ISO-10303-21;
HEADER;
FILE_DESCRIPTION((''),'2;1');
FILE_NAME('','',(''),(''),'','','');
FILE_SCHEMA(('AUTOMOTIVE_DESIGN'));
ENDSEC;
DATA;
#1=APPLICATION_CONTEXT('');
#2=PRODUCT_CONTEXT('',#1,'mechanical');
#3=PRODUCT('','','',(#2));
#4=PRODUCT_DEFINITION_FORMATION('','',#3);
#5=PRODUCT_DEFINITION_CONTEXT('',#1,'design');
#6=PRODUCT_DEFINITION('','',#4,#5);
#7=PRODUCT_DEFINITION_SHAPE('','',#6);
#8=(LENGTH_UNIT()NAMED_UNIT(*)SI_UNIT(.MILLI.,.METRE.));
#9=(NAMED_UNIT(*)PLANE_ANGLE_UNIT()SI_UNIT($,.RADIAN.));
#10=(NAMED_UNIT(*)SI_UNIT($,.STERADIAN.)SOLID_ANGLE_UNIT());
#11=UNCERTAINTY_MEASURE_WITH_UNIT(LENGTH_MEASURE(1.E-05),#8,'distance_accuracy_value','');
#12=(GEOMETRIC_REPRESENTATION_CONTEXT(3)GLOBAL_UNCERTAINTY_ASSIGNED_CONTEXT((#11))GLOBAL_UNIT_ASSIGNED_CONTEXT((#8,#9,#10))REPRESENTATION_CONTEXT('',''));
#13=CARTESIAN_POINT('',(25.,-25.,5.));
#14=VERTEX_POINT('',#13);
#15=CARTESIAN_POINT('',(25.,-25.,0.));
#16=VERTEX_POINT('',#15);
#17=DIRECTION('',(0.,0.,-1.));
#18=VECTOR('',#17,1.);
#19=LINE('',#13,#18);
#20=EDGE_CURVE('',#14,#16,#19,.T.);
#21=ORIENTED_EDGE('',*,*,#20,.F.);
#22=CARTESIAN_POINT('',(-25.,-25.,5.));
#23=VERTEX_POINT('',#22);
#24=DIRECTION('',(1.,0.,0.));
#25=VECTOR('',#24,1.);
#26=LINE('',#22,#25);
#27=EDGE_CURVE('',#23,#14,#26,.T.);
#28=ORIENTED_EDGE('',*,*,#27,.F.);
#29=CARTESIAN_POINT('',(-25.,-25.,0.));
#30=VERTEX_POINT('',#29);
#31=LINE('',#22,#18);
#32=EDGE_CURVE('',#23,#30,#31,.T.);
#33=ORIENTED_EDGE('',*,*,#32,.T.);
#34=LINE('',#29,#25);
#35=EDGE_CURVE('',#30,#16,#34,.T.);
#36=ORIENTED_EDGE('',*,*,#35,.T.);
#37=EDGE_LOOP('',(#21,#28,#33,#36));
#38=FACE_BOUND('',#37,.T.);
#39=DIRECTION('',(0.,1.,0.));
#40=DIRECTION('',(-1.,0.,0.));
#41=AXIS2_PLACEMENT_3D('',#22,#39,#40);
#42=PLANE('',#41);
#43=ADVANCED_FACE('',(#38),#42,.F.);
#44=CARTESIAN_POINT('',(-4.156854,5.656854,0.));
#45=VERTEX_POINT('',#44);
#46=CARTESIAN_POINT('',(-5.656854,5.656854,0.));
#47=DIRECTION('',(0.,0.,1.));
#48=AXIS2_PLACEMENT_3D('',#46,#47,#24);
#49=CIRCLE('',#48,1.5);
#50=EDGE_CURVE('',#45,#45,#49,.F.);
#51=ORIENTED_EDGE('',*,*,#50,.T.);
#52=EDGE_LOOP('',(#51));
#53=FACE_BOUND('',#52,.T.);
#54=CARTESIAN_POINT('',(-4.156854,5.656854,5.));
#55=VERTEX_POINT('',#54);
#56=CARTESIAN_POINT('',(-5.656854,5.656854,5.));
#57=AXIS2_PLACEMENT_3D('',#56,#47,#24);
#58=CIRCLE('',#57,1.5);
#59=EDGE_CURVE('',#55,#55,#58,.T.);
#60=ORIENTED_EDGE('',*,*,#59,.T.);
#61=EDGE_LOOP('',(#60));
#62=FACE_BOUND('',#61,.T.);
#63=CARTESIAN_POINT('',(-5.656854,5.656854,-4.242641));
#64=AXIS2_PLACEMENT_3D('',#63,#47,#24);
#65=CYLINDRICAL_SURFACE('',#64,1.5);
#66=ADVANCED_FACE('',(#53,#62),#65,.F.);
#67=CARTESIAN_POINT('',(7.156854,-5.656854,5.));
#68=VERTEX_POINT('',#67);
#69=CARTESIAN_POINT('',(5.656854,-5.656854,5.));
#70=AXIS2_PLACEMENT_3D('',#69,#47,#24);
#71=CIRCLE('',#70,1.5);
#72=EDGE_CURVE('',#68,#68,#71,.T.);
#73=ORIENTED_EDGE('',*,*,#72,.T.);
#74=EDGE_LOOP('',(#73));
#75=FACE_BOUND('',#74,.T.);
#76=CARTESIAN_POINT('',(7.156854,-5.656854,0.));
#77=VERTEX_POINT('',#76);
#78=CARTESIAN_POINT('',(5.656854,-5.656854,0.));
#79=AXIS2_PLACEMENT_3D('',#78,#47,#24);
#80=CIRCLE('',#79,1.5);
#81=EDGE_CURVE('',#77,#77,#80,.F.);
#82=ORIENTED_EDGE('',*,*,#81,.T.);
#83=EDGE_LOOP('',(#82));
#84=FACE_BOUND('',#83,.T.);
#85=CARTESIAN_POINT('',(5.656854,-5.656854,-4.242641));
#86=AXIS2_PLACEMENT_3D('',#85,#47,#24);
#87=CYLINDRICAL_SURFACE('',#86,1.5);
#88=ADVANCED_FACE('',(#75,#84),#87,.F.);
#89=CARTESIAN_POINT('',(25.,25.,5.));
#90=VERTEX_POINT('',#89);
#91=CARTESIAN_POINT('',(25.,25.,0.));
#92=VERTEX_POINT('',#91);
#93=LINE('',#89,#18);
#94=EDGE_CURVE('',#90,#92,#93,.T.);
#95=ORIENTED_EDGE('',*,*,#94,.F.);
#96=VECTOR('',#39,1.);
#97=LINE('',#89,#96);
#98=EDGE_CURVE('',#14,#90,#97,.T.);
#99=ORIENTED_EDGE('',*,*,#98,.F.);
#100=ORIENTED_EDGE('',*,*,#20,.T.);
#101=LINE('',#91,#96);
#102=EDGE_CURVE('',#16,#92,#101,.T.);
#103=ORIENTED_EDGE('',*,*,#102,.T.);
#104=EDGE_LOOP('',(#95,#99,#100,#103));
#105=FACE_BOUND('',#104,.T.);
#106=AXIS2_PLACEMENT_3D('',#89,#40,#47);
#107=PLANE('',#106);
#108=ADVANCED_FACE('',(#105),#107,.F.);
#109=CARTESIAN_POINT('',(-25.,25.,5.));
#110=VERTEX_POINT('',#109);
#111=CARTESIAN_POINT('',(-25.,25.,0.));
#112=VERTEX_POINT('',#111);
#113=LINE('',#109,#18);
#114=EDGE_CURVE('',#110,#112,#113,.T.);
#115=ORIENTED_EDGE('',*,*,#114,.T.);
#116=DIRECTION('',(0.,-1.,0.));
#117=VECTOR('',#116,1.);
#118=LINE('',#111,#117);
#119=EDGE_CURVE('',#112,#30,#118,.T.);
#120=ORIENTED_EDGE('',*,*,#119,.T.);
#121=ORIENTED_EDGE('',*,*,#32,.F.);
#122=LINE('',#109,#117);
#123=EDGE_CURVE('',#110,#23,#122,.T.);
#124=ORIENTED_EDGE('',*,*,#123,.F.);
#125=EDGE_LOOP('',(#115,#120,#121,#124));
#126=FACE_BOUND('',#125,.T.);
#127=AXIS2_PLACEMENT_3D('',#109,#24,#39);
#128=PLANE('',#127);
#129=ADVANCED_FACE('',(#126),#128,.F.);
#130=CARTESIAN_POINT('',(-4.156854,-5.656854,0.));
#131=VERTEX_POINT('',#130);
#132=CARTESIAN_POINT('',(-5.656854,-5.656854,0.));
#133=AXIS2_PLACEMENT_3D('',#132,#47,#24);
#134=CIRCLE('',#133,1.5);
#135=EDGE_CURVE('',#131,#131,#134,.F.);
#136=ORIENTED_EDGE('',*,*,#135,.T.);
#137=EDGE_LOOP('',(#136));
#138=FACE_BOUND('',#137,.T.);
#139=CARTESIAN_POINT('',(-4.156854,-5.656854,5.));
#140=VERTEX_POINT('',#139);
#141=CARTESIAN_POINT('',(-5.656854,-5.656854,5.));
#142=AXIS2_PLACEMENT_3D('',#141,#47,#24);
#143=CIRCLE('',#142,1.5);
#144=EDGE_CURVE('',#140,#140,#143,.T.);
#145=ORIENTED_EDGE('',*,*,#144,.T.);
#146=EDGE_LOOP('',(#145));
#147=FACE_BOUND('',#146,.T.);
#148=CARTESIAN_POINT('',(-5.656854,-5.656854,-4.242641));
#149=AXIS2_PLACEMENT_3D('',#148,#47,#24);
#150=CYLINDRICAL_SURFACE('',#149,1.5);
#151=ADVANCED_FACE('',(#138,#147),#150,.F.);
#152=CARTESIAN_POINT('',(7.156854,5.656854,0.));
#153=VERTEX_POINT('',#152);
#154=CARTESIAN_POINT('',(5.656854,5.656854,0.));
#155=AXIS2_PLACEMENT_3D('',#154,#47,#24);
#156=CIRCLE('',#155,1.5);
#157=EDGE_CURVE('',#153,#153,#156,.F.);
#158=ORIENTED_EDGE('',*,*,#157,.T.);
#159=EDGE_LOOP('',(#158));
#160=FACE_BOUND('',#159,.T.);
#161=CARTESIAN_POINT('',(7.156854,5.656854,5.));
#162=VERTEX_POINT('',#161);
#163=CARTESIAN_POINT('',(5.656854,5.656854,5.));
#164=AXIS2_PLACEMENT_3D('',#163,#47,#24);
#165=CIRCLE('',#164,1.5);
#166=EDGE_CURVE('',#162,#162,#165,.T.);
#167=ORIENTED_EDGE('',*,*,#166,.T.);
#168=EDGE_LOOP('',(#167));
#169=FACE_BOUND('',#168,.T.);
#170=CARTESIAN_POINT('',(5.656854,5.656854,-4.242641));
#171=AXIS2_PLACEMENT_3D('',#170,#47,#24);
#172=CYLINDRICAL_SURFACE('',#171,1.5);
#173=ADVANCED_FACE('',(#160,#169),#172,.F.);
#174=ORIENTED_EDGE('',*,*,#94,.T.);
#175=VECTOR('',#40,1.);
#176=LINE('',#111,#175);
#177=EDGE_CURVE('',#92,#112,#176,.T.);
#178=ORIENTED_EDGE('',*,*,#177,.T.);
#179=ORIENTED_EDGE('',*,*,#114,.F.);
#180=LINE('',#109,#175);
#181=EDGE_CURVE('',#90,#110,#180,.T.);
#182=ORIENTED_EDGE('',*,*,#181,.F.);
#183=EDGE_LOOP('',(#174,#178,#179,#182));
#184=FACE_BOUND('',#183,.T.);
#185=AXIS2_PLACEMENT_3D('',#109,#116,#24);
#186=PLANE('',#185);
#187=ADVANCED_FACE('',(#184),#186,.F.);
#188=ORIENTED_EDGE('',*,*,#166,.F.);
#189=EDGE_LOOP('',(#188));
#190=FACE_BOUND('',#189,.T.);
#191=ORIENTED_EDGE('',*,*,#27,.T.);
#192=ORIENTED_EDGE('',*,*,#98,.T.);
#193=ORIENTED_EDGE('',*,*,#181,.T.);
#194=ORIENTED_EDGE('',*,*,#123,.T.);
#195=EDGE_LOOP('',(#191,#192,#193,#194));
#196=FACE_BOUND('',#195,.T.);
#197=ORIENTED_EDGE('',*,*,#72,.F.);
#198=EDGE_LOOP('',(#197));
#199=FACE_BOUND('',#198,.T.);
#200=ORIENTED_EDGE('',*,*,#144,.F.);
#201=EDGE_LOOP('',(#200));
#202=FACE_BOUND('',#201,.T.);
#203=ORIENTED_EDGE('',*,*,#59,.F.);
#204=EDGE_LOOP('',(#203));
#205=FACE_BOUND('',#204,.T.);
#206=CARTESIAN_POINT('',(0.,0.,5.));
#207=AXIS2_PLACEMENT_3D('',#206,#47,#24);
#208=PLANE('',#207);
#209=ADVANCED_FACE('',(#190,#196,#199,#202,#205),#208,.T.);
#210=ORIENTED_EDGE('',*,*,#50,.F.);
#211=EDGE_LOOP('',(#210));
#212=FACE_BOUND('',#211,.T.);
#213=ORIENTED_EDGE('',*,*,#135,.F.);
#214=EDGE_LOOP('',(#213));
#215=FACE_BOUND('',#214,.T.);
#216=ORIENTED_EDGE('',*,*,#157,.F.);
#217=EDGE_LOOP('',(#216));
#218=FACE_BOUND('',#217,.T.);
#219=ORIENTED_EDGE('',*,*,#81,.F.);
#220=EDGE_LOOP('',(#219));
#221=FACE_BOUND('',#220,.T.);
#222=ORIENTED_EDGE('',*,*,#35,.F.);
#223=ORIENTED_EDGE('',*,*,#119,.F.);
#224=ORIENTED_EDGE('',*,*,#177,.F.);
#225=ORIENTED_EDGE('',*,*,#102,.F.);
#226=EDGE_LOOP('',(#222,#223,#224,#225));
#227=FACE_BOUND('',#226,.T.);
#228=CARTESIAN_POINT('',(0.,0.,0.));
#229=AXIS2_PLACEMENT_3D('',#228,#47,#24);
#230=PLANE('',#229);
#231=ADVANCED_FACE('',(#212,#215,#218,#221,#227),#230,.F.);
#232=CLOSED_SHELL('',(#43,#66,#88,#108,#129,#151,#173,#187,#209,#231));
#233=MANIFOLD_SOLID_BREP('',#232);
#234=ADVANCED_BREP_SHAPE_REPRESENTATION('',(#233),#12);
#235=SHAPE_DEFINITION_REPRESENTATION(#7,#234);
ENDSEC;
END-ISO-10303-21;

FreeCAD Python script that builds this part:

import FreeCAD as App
import Part
import Sketcher

doc = App.newDocument("Part")
body = doc.addObject("PartDesign::Body", "Body")

# Sketch on XY plane
sketch1 = doc.addObject("Sketcher::SketchObject", "Sketch")
body.addObject(sketch1)
sketch1.AttachmentSupport = (doc.XY_Plane, [""])
sketch1.MapMode = "FlatFace"
sketch1.addGeometry([
    Part.LineSegment(App.Vector(-25, 25, 0), App.Vector(-25, -25, 0)),
    Part.LineSegment(App.Vector(-25, -25, 0), App.Vector(25, -25, 0)),
    Part.LineSegment(App.Vector(25, -25, 0), App.Vector(25, 25, 0)),
    Part.LineSegment(App.Vector(25, 25, 0), App.Vector(-25, 25, 0)),
], False)
sketch1.addConstraint([
    Sketcher.Constraint("Coincident", 0, 2, 1, 1),
    Sketcher.Constraint("Coincident", 1, 2, 2, 1),
    Sketcher.Constraint("Coincident", 2, 2, 3, 1),
    Sketcher.Constraint("Coincident", 3, 2, 0, 1),
    Sketcher.Constraint("Vertical", 0),
    Sketcher.Constraint("Horizontal", 1),
    Sketcher.Constraint("Vertical", 2),
    Sketcher.Constraint("Horizontal", 3),
    Sketcher.Constraint("Symmetric", 0, 2, 2, 2, -1, 1),
    Sketcher.Constraint("Equal", 3, 0),
    Sketcher.Constraint("DistanceX", 1, 1, 1, 2, 50.0),
])
pad1 = doc.addObject("PartDesign::Pad", "Pad")
body.addObject(pad1)
pad1.Profile = sketch1
pad1.Length = 5

# Sketch on XY plane
sketch2 = doc.addObject("Sketcher::SketchObject", "Sketch001")
body.addObject(sketch2)
sketch2.AttachmentSupport = (doc.XY_Plane, [""])
sketch2.MapMode = "FlatFace"
sketch2.AttachmentOffset = App.Placement(App.Vector(0, 0, 5), App.Rotation())
sketch2.addGeometry([
    Part.Circle(App.Vector(5.7, 5.7, 0), App.Vector(0, 0, 1), 1.5),
    Part.Circle(App.Vector(5.7, -5.7, 0), App.Vector(0, 0, 1), 1.5),
    Part.Circle(App.Vector(-5.7, -5.7, 0), App.Vector(0, 0, 1), 1.5),
    Part.Circle(App.Vector(-5.7, 5.7, 0), App.Vector(0, 0, 1), 1.5),
], False)
sketch2.addConstraint([
    Sketcher.Constraint("Equal", 0, 1),
    Sketcher.Constraint("Equal", 1, 2),
    Sketcher.Constraint("Equal", 2, 3),
    Sketcher.Constraint("Symmetric", 0, 3, 2, 3, -1, 1),
    Sketcher.Constraint("Symmetric", 1, 3, 3, 3, -1, 1),
    Sketcher.Constraint("Symmetric", 1, 3, 2, 3, -2),
    Sketcher.Constraint("Diameter", 0, 3.0),
    Sketcher.Constraint("DistanceY", 1, 3, 0, 3, 11.313708),
    Sketcher.Constraint("DistanceX", 2, 3, 1, 3, 11.313708),
])
pocket1 = doc.addObject("PartDesign::Pocket", "Pocket")
body.addObject(pocket1)
pocket1.Profile = sketch2
pocket1.Length = 5

doc.recompute()
